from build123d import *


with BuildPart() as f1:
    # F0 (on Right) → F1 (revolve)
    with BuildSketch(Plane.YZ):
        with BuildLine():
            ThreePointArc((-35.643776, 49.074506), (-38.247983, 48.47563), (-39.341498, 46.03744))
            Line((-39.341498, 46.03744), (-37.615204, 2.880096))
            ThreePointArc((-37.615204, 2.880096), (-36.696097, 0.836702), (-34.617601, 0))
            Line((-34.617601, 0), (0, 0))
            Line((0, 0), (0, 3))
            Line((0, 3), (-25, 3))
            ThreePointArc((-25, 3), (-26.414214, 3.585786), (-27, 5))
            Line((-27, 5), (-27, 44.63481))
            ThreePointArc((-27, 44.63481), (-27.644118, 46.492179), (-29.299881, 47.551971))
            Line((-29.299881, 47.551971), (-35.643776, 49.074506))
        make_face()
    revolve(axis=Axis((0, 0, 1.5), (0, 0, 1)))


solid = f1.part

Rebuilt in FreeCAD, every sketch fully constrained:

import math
import FreeCAD as App
import Part
import Sketcher

V = App.Vector
Q = App.Units.Quantity

doc = App.newDocument("Part")
body = doc.addObject("PartDesign::Body", "Body")

# Sketch on YZ plane
sketch1 = doc.addObject("Sketcher::SketchObject", "Sketch")
body.addObject(sketch1)
sketch1.AttachmentSupport = (doc.YZ_Plane, [""])
sketch1.MapMode = "FlatFace"
sketch1.addGeometry([
    Part.ArcOfCircle(Part.Circle(V(-36.3, 46.2, 0), V(0, 0, 1), 3), math.radians(77), math.radians(182)),  # 0
    Part.LineSegment(V(-39.3, 46, 0), V(-37.6, 2.9, 0)),  # 1
    Part.ArcOfCircle(Part.Circle(V(-34.6, 3, 0), V(0, 0, 1), 3), math.radians(-178), math.radians(-90)),  # 2
    Part.LineSegment(V(-34.6, 0, 0), V(0, 0, 0)),  # 3
    Part.LineSegment(V(0, 0, 0), V(0, 3, 0)),  # 4
    Part.LineSegment(V(0, 3, 0), V(-25, 3, 0)),  # 5
    Part.ArcOfCircle(Part.Circle(V(-25, 5, 0), V(0, 0, 1), 2), math.radians(180), math.radians(270)),  # 6
    Part.LineSegment(V(-27, 5, 0), V(-27, 44.6, 0)),  # 7
    Part.ArcOfCircle(Part.Circle(V(-30, 44.6, 0), V(0, 0, 1), 3), math.radians(0), math.radians(77)),  # 8
    Part.LineSegment(V(-29.3, 47.6, 0), V(-35.6, 49.1, 0)),  # 9
], False)
sketch1.addConstraint([
    Sketcher.Constraint("Tangent", 0, 2, 1, 1),
    Sketcher.Constraint("Tangent", 1, 2, 2, 1),
    Sketcher.Constraint("Tangent", 2, 2, 3, 1),
    Sketcher.Constraint("Coincident", 3, 2, 4, 1),
    Sketcher.Constraint("Coincident", 4, 2, 5, 1),
    Sketcher.Constraint("Tangent", 5, 2, 6, 2),
    Sketcher.Constraint("Tangent", 6, 1, 7, 1),
    Sketcher.Constraint("Tangent", 7, 2, 8, 1),
    Sketcher.Constraint("Tangent", 8, 2, 9, 1),
    Sketcher.Constraint("Tangent", 9, 2, 0, 1),
    Sketcher.Constraint("Horizontal", 3),
    Sketcher.Constraint("Vertical", 4),
    Sketcher.Constraint("Horizontal", 5),
    Sketcher.Constraint("Vertical", 7),
    Sketcher.Constraint("Coincident", 3, 2, -1, 1),
    Sketcher.Constraint("Equal", 0, 2),
    Sketcher.Constraint("Equal", 2, 8),
    Sketcher.Constraint("Horizontal", 2, 3, 4, 2),
    Sketcher.Constraint("Radius", 0, Q("3 mm")),
    Sketcher.Constraint("Radius", 6, Q("1.999999 mm")),
    Sketcher.Constraint("DistanceX", 5, 2, 5, 1, Q("25 mm")),
    Sketcher.Constraint("DistanceX", 3, 1, 3, 2, Q("34.617601 mm")),
    Sketcher.Constraint("DistanceY", 7, 1, 7, 2, Q("39.63481 mm")),
    Sketcher.Constraint("DistanceX", 0, 2, -1, 1, Q("39.341498 mm")),
    Sketcher.Constraint("Distance", 9, Q("6.524041 mm")),
])
revolution = doc.addObject("PartDesign::Revolution", "Revolution")
body.addObject(revolution)
revolution.Profile = sketch1
revolution.ReferenceAxis = (sketch1, ["V_Axis"])
revolution.Angle = 360

doc.recompute()
